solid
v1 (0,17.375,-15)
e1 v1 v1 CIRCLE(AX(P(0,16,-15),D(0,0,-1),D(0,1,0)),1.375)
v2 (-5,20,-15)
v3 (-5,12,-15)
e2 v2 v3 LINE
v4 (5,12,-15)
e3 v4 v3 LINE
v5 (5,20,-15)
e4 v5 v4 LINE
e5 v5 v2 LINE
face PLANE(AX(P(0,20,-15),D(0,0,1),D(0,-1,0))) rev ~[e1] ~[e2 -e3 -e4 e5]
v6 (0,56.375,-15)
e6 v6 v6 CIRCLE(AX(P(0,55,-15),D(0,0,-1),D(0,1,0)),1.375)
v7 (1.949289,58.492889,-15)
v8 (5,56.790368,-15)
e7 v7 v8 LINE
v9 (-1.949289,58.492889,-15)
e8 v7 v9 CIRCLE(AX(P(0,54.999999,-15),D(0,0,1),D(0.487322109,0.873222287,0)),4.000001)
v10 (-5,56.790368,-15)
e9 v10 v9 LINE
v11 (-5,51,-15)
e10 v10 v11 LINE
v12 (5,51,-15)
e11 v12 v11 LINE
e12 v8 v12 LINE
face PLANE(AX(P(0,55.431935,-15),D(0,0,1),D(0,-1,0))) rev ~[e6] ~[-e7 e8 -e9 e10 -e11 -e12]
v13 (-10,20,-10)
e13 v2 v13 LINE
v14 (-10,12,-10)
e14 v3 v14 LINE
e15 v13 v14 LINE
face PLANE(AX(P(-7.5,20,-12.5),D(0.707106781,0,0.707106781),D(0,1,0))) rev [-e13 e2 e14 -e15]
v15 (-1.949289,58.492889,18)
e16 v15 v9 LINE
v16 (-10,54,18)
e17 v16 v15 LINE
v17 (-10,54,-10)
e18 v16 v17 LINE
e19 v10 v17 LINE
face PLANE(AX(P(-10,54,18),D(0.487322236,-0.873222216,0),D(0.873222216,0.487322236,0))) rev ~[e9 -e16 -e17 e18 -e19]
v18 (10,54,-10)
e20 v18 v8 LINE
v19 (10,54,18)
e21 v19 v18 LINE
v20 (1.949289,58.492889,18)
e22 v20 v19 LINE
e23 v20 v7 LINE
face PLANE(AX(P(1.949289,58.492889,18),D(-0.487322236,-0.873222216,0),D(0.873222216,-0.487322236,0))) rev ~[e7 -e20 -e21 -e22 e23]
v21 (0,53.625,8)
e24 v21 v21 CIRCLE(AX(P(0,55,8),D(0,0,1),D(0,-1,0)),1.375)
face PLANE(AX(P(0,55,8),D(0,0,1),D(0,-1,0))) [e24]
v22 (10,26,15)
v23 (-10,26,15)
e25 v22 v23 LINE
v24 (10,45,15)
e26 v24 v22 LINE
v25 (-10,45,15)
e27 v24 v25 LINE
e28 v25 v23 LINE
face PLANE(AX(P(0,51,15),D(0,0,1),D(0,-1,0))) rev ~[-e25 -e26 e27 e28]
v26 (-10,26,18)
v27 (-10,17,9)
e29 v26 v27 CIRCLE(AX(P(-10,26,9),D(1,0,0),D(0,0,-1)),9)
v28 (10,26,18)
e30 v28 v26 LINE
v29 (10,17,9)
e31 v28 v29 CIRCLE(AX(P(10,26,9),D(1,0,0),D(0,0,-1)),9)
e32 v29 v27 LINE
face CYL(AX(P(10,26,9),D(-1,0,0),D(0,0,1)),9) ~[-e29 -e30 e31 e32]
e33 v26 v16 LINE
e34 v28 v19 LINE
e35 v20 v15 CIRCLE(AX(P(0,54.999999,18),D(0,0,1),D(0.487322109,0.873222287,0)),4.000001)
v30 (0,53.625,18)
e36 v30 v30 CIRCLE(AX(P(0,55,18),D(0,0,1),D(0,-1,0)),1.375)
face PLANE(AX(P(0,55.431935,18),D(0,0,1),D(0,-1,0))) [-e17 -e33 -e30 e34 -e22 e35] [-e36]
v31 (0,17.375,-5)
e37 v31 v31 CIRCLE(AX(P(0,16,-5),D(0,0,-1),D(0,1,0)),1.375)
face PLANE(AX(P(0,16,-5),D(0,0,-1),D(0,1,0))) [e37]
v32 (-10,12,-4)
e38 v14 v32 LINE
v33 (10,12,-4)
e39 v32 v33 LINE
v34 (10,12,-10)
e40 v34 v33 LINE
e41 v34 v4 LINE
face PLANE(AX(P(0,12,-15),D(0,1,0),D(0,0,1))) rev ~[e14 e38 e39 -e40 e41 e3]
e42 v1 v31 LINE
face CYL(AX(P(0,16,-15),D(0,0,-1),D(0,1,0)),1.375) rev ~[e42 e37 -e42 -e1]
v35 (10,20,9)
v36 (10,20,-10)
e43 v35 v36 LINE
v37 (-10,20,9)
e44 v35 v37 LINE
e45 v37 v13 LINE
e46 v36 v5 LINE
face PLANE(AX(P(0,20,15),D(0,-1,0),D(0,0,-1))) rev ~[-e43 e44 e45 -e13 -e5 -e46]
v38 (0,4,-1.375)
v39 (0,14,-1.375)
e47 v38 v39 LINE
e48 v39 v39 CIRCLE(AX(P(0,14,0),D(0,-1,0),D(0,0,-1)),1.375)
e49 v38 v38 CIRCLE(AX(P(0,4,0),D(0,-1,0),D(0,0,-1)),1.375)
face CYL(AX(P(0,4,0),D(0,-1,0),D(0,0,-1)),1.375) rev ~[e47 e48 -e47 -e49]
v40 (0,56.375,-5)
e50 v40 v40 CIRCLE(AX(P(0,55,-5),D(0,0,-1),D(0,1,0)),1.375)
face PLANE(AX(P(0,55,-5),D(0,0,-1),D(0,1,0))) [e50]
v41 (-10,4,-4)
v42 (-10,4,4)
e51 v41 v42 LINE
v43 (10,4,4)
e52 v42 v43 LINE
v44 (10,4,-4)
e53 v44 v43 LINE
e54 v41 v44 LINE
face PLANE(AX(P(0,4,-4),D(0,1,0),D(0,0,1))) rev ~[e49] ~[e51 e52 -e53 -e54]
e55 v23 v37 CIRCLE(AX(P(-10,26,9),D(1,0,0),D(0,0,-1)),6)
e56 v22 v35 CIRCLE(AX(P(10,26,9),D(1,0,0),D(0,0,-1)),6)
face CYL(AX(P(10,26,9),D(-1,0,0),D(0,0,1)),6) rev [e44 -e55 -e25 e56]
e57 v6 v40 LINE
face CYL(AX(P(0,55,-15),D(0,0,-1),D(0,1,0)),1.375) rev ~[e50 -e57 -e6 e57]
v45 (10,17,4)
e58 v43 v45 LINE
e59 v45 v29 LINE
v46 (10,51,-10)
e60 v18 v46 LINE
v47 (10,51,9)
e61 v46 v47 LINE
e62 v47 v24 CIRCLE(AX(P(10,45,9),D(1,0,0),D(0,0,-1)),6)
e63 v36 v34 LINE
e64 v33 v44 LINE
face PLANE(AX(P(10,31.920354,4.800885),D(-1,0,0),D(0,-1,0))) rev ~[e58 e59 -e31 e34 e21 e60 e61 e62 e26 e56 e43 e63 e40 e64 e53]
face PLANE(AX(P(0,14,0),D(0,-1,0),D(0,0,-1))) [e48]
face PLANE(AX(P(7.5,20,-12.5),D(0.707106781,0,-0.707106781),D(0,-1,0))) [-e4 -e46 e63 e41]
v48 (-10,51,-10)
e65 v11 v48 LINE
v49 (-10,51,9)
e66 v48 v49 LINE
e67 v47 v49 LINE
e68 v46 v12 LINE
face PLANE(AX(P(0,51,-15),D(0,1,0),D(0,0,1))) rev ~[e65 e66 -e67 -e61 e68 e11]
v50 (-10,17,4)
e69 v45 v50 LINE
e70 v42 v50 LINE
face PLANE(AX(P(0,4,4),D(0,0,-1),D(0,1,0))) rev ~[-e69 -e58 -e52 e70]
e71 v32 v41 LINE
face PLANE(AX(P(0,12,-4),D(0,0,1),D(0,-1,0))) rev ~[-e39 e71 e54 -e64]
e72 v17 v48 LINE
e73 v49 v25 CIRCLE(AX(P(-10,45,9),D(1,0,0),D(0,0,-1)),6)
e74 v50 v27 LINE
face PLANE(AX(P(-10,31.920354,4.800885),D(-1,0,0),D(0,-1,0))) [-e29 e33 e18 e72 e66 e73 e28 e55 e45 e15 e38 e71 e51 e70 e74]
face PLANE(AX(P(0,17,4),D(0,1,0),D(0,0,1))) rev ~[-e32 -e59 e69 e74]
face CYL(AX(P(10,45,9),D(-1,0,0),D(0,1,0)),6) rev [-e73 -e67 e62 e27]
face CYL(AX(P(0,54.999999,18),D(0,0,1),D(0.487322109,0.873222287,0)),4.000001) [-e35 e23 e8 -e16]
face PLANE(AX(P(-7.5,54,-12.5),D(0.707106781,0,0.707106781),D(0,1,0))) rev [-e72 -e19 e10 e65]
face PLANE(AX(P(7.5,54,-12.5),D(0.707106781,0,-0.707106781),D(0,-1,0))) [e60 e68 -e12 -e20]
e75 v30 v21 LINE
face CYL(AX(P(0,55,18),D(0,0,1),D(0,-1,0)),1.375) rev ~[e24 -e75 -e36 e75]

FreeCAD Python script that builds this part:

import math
import FreeCAD as App
import Part
import Sketcher
from FreeCAD import Vector
Q = App.Units.Quantity


def edges_at(feature, points):
    """Names of the edges that pass closest to the given points."""
    edges = feature.Shape.Edges
    near = lambda p: min(range(len(edges)), key=lambda i: edges[i].distToShape(Part.Vertex(*p))[0])
    return sorted({f"Edge{near(p) + 1}" for p in points})


def add_polygon(sketch, points):
    """Adds a closed chain of lines whose ends are joined by coincident constraints."""
    first, n = sketch.GeometryCount, len(points)
    for a, b in zip(points, points[1:] + points[:1]):
        sketch.addGeometry(Part.LineSegment(App.Vector(*a, 0), App.Vector(*b, 0)), False)
    for i in range(n):
        sketch.addConstraint(Sketcher.Constraint("Coincident", first + i, 2, first + (i + 1) % n, 1))

doc = App.newDocument("Part")
body = doc.addObject("PartDesign::Body", "Body")

# Sketch on YZ plane
sketch1 = doc.addObject("Sketcher::SketchObject", "Sketch")
body.addObject(sketch1)
sketch1.AttachmentSupport = (doc.YZ_Plane, [""])
sketch1.MapMode = "FlatFace"
add_polygon(sketch1, [(17, 4), (4, 4), (4, -4), (12, -4), (12, -15), (20, -15), (20, 15), (51, 15), (51, -15), (54, -15), (54, 18), (17, 18)])  # lines 0-11
sketch1.addConstraint(Sketcher.Constraint("Horizontal", 0))
sketch1.addConstraint(Sketcher.Constraint("Vertical", 1))
sketch1.addConstraint(Sketcher.Constraint("Horizontal", 2))
sketch1.addConstraint(Sketcher.Constraint("Vertical", 3))
sketch1.addConstraint(Sketcher.Constraint("Horizontal", 4))
sketch1.addConstraint(Sketcher.Constraint("Vertical", 5))
sketch1.addConstraint(Sketcher.Constraint("Horizontal", 6))
sketch1.addConstraint(Sketcher.Constraint("Vertical", 7))
sketch1.addConstraint(Sketcher.Constraint("Horizontal", 8))
sketch1.addConstraint(Sketcher.Constraint("Vertical", 9))
sketch1.addConstraint(Sketcher.Constraint("Horizontal", 10))
sketch1.addConstraint(Sketcher.Constraint("Vertical", 11))
sketch1.addConstraint(Sketcher.Constraint("Horizontal", 4, 2, 7, 2))
sketch1.addConstraint(Sketcher.Constraint("Equal", 2, 4))
sketch1.addConstraint(Sketcher.Constraint("Equal", 4, 1))
sketch1.addConstraint(Sketcher.Constraint("DistanceX", 0, 2, 0, 1, Q("13 mm")))
sketch1.addConstraint(Sketcher.Constraint("DistanceX", 2, 1, 2, 2, Q("8 mm")))
sketch1.addConstraint(Sketcher.Constraint("DistanceX", 6, 1, 6, 2, Q("31 mm")))
sketch1.addConstraint(Sketcher.Constraint("DistanceX", 8, 1, 8, 2, Q("3 mm")))
sketch1.addConstraint(Sketcher.Constraint("DistanceY", 3, 2, 3, 1, Q("11 mm")))
sketch1.addConstraint(Sketcher.Constraint("DistanceY", 5, 1, 5, 2, Q("30 mm")))
sketch1.addConstraint(Sketcher.Constraint("DistanceY", 9, 1, 9, 2, Q("33 mm")))
sketch1.addConstraint(Sketcher.Constraint("DistanceX", -1, 1, 0, 2, Q("4 mm")))
sketch1.addConstraint(Sketcher.Constraint("DistanceY", -1, 1, 0, 2, Q("4 mm")))
pad1 = doc.addObject("PartDesign::Pad", "Pad")
body.addObject(pad1)
pad1.Profile = sketch1
pad1.Length = 20
pad1.Midplane = True

# Sketch on XZ plane
sketch2 = doc.addObject("Sketcher::SketchObject", "Sketch001")
body.addObject(sketch2)
sketch2.AttachmentSupport = (doc.XZ_Plane, [""])
sketch2.MapMode = "FlatFace"
sketch2.AttachmentOffset = App.Placement(Vector(0, 0, -4), App.Rotation())
sketch2.addGeometry(Part.Circle(Vector(0, 0, 0), Vector(0, 0, 1), 1.375), False)
sketch2.addConstraint(Sketcher.Constraint("Coincident", 0, 3, -1, 1))
sketch2.addConstraint(Sketcher.Constraint("Diameter", 0, Q("2.75 mm")))
pocket1 = doc.addObject("PartDesign::Pocket", "Pocket")
body.addObject(pocket1)
pocket1.Profile = sketch2
pocket1.Length = 10

# Sketch on XY plane
sketch3 = doc.addObject("Sketcher::SketchObject", "Sketch002")
body.addObject(sketch3)
sketch3.AttachmentSupport = (doc.XY_Plane, [""])
sketch3.MapMode = "FlatFace"
sketch3.AttachmentOffset = App.Placement(Vector(0, 0, 18), App.Rotation())
sketch3.addGeometry(Part.ArcOfCircle(Part.Circle(Vector(0, 54.999999, 0), Vector(0, 0, 1), 4.000001), math.radians(60.835277), math.radians(119.164723)), False)
sketch3.addGeometry(Part.LineSegment(Vector(-1.949289, 58.492889, 0), Vector(-10, 54, 0)), False)
sketch3.addGeometry(Part.LineSegment(Vector(-10, 54, 0), Vector(10, 54, 0)), False)
sketch3.addGeometry(Part.LineSegment(Vector(10, 54, 0), Vector(1.949289, 58.492889, 0)), False)
sketch3.addConstraint(Sketcher.Constraint("Tangent", 0, 2, 1, 1))
sketch3.addConstraint(Sketcher.Constraint("Coincident", 1, 2, 2, 1))
sketch3.addConstraint(Sketcher.Constraint("Coincident", 2, 2, 3, 1))
sketch3.addConstraint(Sketcher.Constraint("Tangent", 3, 2, 0, 1))
sketch3.addConstraint(Sketcher.Constraint("Horizontal", 2))
sketch3.addConstraint(Sketcher.Constraint("Symmetric", 0, 2, 3, 2, -2))
sketch3.addConstraint(Sketcher.Constraint("Radius", 0, Q("4.000001 mm")))
sketch3.addConstraint(Sketcher.Constraint("DistanceX", 2, 1, 2, 2, Q("20 mm")))
sketch3.addConstraint(Sketcher.Constraint("DistanceY", -1, 1, 0, 3, Q("54.999999 mm")))
sketch3.addConstraint(Sketcher.Constraint("DistanceY", -1, 1, 1, 2, Q("54 mm")))
pad2 = doc.addObject("PartDesign::Pad", "Pad001")
body.addObject(pad2)
pad2.Profile = sketch3
pad2.Length = 33
pad2.Reversed = True

# Sketch on XY plane
sketch4 = doc.addObject("Sketcher::SketchObject", "Sketch003")
body.addObject(sketch4)
sketch4.AttachmentSupport = (doc.XY_Plane, [""])
sketch4.MapMode = "FlatFace"
sketch4.AttachmentOffset = App.Placement(Vector(0, 0, 18), App.Rotation())
sketch4.addGeometry(Part.Circle(Vector(0, 55, 0), Vector(0, 0, 1), 1.375), False)
sketch4.addConstraint(Sketcher.Constraint("PointOnObject", 0, 3, -2))
sketch4.addConstraint(Sketcher.Constraint("Diameter", 0, Q("2.75 mm")))
sketch4.addConstraint(Sketcher.Constraint("DistanceY", -1, 1, 0, 3, Q("55 mm")))
pocket2 = doc.addObject("PartDesign::Pocket", "Pocket001")
body.addObject(pocket2)
pocket2.Profile = sketch4
pocket2.Length = 10

# Sketch on XY plane
sketch5 = doc.addObject("Sketcher::SketchObject", "Sketch004")
body.addObject(sketch5)
sketch5.AttachmentSupport = (doc.XY_Plane, [""])
sketch5.MapMode = "FlatFace"
sketch5.AttachmentOffset = App.Placement(Vector(0, 0, -15), App.Rotation())
sketch5.addGeometry(Part.Circle(Vector(0, 55, 0), Vector(0, 0, 1), 1.375), False)
sketch5.addGeometry(Part.Circle(Vector(0, 16, 0), Vector(0, 0, 1), 1.375), False)
sketch5.addConstraint(Sketcher.Constraint("Equal", 0, 1))
sketch5.addConstraint(Sketcher.Constraint("PointOnObject", 0, 3, -2))
sketch5.addConstraint(Sketcher.Constraint("PointOnObject", 1, 3, -2))
sketch5.addConstraint(Sketcher.Constraint("Diameter", 0, Q("2.75 mm")))
sketch5.addConstraint(Sketcher.Constraint("DistanceY", -1, 1, 0, 3, Q("55 mm")))
sketch5.addConstraint(Sketcher.Constraint("DistanceY", -1, 1, 1, 3, Q("16 mm")))
pocket3 = doc.addObject("PartDesign::Pocket", "Pocket002")
body.addObject(pocket3)
pocket3.Profile = sketch5
pocket3.Length = 10
pocket3.Reversed = True
doc.recompute()

fillet = doc.addObject("PartDesign::Fillet", "Fillet")
body.addObject(fillet)
fillet.Base = (pocket3, edges_at(pocket3, [(0, 17, 18)]))
fillet.Radius = 9
doc.recompute()

fillet2 = doc.addObject("PartDesign::Fillet", "Fillet001")
body.addObject(fillet2)
fillet2.Base = (fillet, edges_at(fillet, [(0, 20, 15), (0, 51, 15)]))
fillet2.Radius = 6
doc.recompute()

chamfer = doc.addObject("PartDesign::Chamfer", "Chamfer")
body.addObject(chamfer)
chamfer.Base = (fillet2, edges_at(fillet2, [
    (-10, 52.5, -15),
    (-10, 16, -15),
    (10, 52.5, -15),
    (10, 16, -15),
]))
chamfer.Size = 5

doc.recompute()
